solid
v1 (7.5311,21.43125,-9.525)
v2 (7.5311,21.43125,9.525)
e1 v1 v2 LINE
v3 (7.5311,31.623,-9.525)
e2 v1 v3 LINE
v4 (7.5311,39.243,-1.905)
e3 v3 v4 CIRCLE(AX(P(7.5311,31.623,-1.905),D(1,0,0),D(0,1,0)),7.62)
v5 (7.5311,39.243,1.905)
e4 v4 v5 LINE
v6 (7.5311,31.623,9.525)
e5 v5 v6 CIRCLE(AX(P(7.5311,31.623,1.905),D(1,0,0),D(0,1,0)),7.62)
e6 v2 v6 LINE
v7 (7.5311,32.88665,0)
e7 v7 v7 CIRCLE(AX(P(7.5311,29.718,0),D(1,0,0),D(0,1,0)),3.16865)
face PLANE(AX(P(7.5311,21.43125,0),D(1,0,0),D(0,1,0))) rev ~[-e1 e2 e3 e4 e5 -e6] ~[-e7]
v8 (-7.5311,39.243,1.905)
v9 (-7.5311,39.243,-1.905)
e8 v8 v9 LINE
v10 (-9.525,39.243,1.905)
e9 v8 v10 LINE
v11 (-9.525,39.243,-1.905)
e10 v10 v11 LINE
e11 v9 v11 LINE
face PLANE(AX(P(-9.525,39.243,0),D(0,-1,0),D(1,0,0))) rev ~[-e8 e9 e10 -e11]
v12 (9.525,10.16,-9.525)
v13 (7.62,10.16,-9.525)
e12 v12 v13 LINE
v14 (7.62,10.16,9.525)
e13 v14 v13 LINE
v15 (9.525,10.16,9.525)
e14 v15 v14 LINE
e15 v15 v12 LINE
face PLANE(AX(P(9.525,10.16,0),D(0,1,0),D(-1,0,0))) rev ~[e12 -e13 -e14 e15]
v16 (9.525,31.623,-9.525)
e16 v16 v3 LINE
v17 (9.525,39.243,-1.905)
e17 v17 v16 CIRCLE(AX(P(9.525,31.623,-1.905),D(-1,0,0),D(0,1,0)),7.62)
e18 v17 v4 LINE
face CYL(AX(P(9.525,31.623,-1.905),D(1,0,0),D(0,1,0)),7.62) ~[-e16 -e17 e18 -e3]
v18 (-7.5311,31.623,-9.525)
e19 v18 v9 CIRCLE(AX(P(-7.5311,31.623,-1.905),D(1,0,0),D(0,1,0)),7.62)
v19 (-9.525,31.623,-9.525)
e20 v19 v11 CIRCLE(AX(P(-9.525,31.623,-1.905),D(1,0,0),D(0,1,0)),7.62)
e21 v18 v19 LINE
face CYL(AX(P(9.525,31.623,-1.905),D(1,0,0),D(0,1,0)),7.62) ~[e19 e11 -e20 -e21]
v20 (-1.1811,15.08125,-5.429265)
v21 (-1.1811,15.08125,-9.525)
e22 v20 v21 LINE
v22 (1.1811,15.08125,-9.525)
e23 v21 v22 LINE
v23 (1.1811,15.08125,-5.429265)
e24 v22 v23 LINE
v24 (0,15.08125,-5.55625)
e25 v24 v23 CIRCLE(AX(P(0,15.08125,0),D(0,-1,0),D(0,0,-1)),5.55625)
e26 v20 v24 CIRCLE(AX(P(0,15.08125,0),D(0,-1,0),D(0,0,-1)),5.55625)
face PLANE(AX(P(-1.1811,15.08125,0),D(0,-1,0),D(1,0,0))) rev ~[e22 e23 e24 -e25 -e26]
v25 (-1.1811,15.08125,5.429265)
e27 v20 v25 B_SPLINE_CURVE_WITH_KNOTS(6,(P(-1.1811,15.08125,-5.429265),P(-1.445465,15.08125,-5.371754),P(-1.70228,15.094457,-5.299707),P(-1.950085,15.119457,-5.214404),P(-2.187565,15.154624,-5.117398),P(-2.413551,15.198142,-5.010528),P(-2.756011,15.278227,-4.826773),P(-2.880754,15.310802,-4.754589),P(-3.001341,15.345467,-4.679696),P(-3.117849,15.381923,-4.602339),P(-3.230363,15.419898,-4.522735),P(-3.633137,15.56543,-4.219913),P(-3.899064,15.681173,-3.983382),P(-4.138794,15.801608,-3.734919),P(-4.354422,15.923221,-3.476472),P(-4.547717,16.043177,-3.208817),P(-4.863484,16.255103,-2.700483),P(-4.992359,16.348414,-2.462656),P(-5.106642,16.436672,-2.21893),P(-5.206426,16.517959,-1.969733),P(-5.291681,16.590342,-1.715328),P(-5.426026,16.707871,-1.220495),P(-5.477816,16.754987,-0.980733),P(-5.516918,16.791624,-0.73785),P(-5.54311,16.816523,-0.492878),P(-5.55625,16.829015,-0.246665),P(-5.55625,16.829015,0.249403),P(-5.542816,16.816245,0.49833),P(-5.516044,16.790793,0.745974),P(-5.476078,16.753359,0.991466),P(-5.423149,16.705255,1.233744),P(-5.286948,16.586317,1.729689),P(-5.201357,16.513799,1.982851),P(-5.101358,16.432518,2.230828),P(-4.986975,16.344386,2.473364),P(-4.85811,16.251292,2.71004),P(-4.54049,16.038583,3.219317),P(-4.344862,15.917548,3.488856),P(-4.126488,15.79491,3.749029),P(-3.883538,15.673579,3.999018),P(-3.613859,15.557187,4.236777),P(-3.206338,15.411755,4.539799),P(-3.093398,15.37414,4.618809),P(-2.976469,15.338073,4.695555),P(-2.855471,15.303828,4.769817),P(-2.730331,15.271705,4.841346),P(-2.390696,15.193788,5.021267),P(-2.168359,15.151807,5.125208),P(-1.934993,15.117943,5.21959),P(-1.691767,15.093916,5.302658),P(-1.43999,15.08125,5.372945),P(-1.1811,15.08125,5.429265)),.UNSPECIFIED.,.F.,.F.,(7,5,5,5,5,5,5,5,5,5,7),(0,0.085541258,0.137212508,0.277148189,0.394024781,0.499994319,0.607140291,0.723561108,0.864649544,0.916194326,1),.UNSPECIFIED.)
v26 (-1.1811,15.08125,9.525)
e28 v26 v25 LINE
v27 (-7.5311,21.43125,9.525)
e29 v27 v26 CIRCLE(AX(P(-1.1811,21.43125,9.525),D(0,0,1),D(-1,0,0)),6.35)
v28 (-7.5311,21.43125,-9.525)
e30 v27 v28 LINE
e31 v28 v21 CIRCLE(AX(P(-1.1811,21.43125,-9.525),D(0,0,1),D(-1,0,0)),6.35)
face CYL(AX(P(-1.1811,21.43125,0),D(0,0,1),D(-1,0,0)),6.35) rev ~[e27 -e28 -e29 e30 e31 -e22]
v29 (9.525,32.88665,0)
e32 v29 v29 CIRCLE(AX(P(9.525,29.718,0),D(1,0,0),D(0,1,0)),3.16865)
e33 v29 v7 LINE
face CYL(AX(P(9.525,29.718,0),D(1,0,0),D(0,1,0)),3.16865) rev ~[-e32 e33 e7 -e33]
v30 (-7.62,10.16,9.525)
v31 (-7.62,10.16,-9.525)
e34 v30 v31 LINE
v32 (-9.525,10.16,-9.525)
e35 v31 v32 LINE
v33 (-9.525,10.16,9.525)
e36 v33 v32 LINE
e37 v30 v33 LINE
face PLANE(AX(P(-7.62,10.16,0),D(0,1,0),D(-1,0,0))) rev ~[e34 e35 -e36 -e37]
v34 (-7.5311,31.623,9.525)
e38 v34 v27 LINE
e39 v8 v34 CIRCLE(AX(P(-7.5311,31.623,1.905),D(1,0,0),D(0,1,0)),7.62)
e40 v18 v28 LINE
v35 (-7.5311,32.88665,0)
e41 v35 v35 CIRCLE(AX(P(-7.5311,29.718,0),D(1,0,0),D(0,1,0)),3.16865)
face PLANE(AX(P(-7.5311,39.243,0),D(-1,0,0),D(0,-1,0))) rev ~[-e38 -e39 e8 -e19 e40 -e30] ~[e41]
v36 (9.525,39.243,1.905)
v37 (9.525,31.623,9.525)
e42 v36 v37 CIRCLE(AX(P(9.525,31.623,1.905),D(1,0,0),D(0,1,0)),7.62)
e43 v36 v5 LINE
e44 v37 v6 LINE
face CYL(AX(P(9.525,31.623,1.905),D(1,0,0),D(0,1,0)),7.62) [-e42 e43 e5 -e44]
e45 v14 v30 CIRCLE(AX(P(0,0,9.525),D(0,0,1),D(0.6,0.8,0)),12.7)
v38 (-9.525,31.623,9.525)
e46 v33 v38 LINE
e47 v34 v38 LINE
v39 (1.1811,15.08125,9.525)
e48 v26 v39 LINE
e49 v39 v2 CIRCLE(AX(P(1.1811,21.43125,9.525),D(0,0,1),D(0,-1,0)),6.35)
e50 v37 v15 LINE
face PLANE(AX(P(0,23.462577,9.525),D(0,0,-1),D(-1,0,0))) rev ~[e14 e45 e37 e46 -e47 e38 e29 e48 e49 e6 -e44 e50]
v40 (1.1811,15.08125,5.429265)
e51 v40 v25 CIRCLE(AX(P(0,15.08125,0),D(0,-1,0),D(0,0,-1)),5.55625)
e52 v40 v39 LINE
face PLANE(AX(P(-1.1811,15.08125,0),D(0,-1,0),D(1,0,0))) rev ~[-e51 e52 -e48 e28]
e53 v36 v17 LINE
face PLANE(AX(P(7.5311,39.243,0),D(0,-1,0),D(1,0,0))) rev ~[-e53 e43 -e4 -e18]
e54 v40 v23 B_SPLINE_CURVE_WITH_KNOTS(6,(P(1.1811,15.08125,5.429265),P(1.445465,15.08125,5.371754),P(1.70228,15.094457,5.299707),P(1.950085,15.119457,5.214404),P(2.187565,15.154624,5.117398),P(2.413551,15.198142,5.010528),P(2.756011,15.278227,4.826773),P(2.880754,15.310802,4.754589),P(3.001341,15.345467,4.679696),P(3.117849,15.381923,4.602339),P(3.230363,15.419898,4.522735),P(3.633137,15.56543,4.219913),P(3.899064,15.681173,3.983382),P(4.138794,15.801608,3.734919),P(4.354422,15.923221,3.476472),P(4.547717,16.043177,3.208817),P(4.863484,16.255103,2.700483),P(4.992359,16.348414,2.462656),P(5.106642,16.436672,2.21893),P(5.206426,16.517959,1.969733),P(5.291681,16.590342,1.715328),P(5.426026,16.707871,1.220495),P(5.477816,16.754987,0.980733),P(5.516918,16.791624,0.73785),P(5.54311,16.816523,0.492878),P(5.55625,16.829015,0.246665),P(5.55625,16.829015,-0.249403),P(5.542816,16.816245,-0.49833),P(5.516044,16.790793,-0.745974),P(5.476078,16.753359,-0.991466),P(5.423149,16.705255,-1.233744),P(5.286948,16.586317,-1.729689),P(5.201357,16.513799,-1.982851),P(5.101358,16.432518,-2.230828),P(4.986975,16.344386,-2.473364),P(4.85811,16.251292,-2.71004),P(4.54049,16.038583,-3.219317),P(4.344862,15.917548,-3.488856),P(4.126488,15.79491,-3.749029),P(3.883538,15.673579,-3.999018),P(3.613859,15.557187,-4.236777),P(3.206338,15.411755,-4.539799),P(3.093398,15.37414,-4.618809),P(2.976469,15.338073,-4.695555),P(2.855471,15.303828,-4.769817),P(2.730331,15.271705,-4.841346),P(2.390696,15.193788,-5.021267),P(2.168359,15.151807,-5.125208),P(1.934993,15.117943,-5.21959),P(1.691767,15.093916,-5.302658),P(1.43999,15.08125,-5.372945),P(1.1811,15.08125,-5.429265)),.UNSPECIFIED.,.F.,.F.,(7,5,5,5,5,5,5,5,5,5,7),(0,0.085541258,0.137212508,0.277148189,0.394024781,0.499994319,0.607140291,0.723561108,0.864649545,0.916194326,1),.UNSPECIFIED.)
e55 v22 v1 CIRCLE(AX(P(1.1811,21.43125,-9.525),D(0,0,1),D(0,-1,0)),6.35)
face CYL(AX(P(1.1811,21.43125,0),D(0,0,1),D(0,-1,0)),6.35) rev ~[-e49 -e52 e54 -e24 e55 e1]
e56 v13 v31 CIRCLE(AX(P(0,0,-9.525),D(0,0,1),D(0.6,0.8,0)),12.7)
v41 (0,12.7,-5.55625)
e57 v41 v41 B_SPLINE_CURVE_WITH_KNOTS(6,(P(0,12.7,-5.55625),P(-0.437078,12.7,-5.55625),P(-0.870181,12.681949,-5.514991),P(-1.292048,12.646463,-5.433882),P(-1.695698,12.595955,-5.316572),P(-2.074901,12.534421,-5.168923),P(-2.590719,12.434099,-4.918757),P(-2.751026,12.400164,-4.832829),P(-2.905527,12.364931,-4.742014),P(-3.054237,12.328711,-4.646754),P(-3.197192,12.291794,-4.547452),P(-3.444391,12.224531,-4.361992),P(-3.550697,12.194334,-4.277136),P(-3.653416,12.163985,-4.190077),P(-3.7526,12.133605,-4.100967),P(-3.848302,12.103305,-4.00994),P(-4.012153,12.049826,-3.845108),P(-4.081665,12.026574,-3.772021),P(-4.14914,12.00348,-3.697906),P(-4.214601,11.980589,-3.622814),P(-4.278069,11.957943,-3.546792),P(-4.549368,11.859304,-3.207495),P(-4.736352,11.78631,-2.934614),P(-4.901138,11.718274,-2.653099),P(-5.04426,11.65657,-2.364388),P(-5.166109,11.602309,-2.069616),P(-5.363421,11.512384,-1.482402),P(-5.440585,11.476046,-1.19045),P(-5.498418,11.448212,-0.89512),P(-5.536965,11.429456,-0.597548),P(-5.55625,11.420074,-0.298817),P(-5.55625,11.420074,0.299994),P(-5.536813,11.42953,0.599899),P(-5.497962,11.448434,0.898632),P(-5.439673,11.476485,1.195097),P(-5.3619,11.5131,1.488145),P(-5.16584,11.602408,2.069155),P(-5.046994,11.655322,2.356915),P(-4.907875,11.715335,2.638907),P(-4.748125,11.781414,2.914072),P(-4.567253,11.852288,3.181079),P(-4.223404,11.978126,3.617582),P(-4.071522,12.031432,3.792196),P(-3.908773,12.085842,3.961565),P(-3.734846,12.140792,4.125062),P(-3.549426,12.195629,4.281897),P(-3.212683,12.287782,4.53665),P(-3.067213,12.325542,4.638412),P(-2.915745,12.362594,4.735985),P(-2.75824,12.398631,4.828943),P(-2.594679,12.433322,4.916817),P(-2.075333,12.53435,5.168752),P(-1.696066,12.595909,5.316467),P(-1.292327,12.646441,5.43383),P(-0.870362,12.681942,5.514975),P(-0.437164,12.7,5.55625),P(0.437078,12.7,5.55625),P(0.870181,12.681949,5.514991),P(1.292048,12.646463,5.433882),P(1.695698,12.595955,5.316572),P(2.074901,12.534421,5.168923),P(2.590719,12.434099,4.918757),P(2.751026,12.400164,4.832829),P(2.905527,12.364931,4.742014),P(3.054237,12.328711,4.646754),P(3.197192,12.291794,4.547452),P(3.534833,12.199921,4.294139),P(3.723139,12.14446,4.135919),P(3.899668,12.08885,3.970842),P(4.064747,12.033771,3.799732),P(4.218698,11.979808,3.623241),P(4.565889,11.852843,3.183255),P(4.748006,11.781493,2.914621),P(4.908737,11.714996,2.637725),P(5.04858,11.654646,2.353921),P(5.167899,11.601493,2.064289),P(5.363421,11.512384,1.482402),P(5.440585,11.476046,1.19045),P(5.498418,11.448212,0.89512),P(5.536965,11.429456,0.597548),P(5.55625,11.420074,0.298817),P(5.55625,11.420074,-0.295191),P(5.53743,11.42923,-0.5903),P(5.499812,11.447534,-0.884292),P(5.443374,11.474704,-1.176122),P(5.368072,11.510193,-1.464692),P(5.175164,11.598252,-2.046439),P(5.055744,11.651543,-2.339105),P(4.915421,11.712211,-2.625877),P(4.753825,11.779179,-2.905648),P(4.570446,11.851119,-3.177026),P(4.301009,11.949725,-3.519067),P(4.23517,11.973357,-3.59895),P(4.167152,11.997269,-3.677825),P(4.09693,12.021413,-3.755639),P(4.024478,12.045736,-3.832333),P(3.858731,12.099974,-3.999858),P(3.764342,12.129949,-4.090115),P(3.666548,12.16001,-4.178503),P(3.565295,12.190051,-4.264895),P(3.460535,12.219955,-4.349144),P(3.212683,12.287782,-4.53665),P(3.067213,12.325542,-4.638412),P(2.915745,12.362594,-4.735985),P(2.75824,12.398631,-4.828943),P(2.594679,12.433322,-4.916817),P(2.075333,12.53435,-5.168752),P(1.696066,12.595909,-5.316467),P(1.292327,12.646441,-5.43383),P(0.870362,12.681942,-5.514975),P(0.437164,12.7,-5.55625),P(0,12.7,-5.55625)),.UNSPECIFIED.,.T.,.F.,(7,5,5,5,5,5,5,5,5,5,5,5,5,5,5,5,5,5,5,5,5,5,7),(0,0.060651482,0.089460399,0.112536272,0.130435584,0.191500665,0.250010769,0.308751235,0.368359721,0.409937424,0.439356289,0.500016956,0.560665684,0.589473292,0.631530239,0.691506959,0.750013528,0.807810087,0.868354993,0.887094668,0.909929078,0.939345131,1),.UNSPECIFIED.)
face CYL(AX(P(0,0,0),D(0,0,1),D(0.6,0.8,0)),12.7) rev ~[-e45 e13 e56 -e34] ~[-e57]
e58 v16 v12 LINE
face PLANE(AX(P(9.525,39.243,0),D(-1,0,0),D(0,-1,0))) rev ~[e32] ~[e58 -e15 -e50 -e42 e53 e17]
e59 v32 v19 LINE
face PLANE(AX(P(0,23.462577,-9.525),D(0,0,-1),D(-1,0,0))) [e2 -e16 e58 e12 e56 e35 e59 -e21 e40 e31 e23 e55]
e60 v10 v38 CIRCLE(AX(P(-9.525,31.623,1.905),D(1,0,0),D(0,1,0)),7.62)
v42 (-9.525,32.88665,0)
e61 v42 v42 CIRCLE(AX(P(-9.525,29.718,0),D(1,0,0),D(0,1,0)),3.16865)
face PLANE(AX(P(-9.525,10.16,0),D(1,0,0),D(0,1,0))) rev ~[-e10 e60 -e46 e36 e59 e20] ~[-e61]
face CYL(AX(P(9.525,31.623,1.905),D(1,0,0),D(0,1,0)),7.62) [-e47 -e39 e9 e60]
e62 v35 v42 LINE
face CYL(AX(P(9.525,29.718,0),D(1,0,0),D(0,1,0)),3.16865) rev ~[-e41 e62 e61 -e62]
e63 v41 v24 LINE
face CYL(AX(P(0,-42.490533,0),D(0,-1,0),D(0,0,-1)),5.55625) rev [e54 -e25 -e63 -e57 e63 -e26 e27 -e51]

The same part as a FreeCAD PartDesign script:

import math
import FreeCAD as App
import Part
import Sketcher

V = App.Vector
Q = App.Units.Quantity

doc = App.newDocument("Part")
params = doc.addObject("Spreadsheet::Sheet", "Params")
for row, (alias, value) in enumerate([
    ("sketch1_radius", "0.5 in"),
    ("sketch1_radius2", "0.25 in"),
    ("sketch1_width", "0.093 in"),
    ("sketch1_width2", "0.075 in"),
    ("sketch1_height", "1.145 in"),
    ("pad1_length", "0.75 in"),
    ("sketch2_radius", "0.3 in"),
    ("sketch3_diameter", "0.4375 in"),
], start=1):
    params.set(f"A{row}", alias)
    params.set(f"B{row}", "=" + value)
    params.setAlias(f"B{row}", alias)

body = doc.addObject("PartDesign::Body", "Body")

sketch1 = body.newObject("Sketcher::SketchObject", "Sketch")
sketch1.AttachmentSupport = (doc.getObject("XY_Plane"), [""])
sketch1.MapMode = "FlatFace"
sketch1.addGeometry([
    Part.LineSegment(V(9.5, 39.2, 0), V(7.5, 39.2, 0)),
    Part.LineSegment(V(7.5, 39.2, 0), V(7.5, 21.4, 0)),
    Part.ArcOfCircle(Part.Circle(V(1.2, 21.4, 0), V(0, 0, 1), 6.3), math.radians(-90), math.radians(0)),
    Part.LineSegment(V(1.2, 15.1, 0), V(-1.2, 15.1, 0)),
    Part.ArcOfCircle(Part.Circle(V(-1.2, 21.4, 0), V(0, 0, 1), 6.3), math.radians(180), math.radians(270)),
    Part.LineSegment(V(-7.5, 21.4, 0), V(-7.5, 39.2, 0)),
    Part.LineSegment(V(-7.5, 39.2, 0), V(-9.5, 39.2, 0)),
    Part.LineSegment(V(-9.5, 39.2, 0), V(-9.5, 10.2, 0)),
    Part.LineSegment(V(-9.5, 10.2, 0), V(-7.6, 10.2, 0)),
    Part.ArcOfCircle(Part.Circle(V(0, 0, 0), V(0, 0, 1), 12.7), math.radians(53), math.radians(127)),
    Part.LineSegment(V(7.6, 10.2, 0), V(9.5, 10.2, 0)),
    Part.LineSegment(V(9.5, 10.2, 0), V(9.5, 39.2, 0)),
], False)
sketch1.addConstraint([
    Sketcher.Constraint("Coincident", 0, 2, 1, 1),
    Sketcher.Constraint("Tangent", 1, 2, 2, 2),
    Sketcher.Constraint("Tangent", 2, 1, 3, 1),
    Sketcher.Constraint("Tangent", 3, 2, 4, 2),
    Sketcher.Constraint("Tangent", 4, 1, 5, 1),
    Sketcher.Constraint("Coincident", 5, 2, 6, 1),
    Sketcher.Constraint("Coincident", 6, 2, 7, 1),
    Sketcher.Constraint("Coincident", 7, 2, 8, 1),
    Sketcher.Constraint("Coincident", 8, 2, 9, 2),
    Sketcher.Constraint("Coincident", 9, 1, 10, 1),
    Sketcher.Constraint("Coincident", 10, 2, 11, 1),
    Sketcher.Constraint("Coincident", 11, 2, 0, 1),
    Sketcher.Constraint("Horizontal", 0),
    Sketcher.Constraint("Vertical", 1),
    Sketcher.Constraint("Horizontal", 3),
    Sketcher.Constraint("Vertical", 5),
    Sketcher.Constraint("Horizontal", 6),
    Sketcher.Constraint("Vertical", 7),
    Sketcher.Constraint("Horizontal", 8),
    Sketcher.Constraint("Horizontal", 10),
    Sketcher.Constraint("Vertical", 11),
    Sketcher.Constraint("Coincident", 9, 3, -1, 1),
    Sketcher.Constraint("Equal", 2, 4),
    Sketcher.Constraint("Symmetric", 0, 2, 5, 2, -2),
    Sketcher.Constraint("Symmetric", 7, 2, 10, 2, -2),
    Sketcher.Constraint("Radius", 9, Q("0.5 in")),
    Sketcher.Constraint("Radius", 2, Q("0.25 in")),
    Sketcher.Constraint("DistanceY", -1, 1, 7, 2, Q("0.4 in")),
    Sketcher.Constraint("DistanceX", 3, 2, 3, 1, Q("0.093 in")),
    Sketcher.Constraint("DistanceX", 8, 1, 8, 2, Q("0.075 in")),
    Sketcher.Constraint("DistanceY", 7, 2, 7, 1, Q("1.145 in")),
    Sketcher.Constraint("DistanceY", -1, 1, 2, 3, Q("0.84375 in")),
])
sketch1.setExpression("Constraints[25]", "Params.sketch1_radius")
sketch1.setExpression("Constraints[26]", "Params.sketch1_radius2")
sketch1.setExpression("Constraints[28]", "Params.sketch1_width")
sketch1.setExpression("Constraints[29]", "Params.sketch1_width2")
sketch1.setExpression("Constraints[30]", "Params.sketch1_height")
pad1 = body.newObject("PartDesign::Pad", "Pad")
pad1.Profile = sketch1
pad1.setExpression("Length", "Params.pad1_length")
pad1.Midplane = True

sketch2 = body.newObject("Sketcher::SketchObject", "Sketch001")
sketch2.AttachmentSupport = (doc.getObject("YZ_Plane"), [""])
sketch2.MapMode = "FlatFace"
sketch2.AttachmentOffset = App.Placement(V(0, 0, 0.375 * 25.4), App.Rotation())
sketch2.addGeometry([
    Part.Circle(V(29.7, 0, 0), V(0, 0, 1), 3.2),
    Part.LineSegment(V(39.2, 9.5, 0), V(31.6, 9.5, 0)),
    Part.ArcOfCircle(Part.Circle(V(31.6, 1.9, 0), V(0, 0, 1), 7.6), math.radians(0), math.radians(90)),
    Part.LineSegment(V(39.2, 1.9, 0), V(39.2, 9.5, 0)),
    Part.LineSegment(V(31.6, -9.5, 0), V(39.2, -9.5, 0)),
    Part.LineSegment(V(39.2, -9.5, 0), V(39.2, -1.9, 0)),
    Part.ArcOfCircle(Part.Circle(V(31.6, -1.9, 0), V(0, 0, 1), 7.6), math.radians(-90), math.radians(0)),
], False)
sketch2.addConstraint([
    Sketcher.Constraint("Tangent", 1, 2, 2, 2),
    Sketcher.Constraint("Tangent", 2, 1, 3, 1),
    Sketcher.Constraint("Coincident", 3, 2, 1, 1),
    Sketcher.Constraint("Coincident", 4, 2, 5, 1),
    Sketcher.Constraint("Tangent", 5, 2, 6, 2),
    Sketcher.Constraint("Tangent", 6, 1, 4, 1),
    Sketcher.Constraint("Horizontal", 1),
    Sketcher.Constraint("Vertical", 3),
    Sketcher.Constraint("Horizontal", 4),
    Sketcher.Constraint("Vertical", 5),
    Sketcher.Constraint("Equal", 2, 6),
    Sketcher.Constraint("Symmetric", 2, 3, 6, 3, -1),
    Sketcher.Constraint("PointOnObject", 0, 3, -1),
    Sketcher.Constraint("Radius", 2, Q("0.3 in")),
    Sketcher.Constraint("Diameter", 0, Q("0.2495 in")),
    Sketcher.Constraint("DistanceX", -1, 1, 0, 3, Q("1.17 in")),
    Sketcher.Constraint("DistanceY", 6, 3, 2, 3, Q("0.15 in")),
    Sketcher.Constraint("DistanceX", -1, 1, 2, 3, Q("1.245 in")),
])
sketch2.setExpression("Constraints[13]", "Params.sketch2_radius")
pocket1 = body.newObject("PartDesign::Pocket", "Pocket")
pocket1.Profile = sketch2
pocket1.Type = "ThroughAll"

sketch3 = body.newObject("Sketcher::SketchObject", "Sketch002")
sketch3.AttachmentSupport = (doc.getObject("XZ_Plane"), [""])
sketch3.MapMode = "FlatFace"
sketch3.addGeometry(Part.Circle(V(0, 0, 0), V(0, 0, 1), 6), False)
sketch3.addConstraint([
    Sketcher.Constraint("Coincident", 0, 3, -1, 1),
    Sketcher.Constraint("Diameter", 0, Q("0.4375 in")),
])
sketch3.setExpression("Constraints[1]", "Params.sketch3_diameter")
pocket2 = body.newObject("PartDesign::Pocket", "Pocket001")
pocket2.Profile = sketch3
pocket2.Type = "ThroughAll"
pocket2.Midplane = True

doc.recompute()
